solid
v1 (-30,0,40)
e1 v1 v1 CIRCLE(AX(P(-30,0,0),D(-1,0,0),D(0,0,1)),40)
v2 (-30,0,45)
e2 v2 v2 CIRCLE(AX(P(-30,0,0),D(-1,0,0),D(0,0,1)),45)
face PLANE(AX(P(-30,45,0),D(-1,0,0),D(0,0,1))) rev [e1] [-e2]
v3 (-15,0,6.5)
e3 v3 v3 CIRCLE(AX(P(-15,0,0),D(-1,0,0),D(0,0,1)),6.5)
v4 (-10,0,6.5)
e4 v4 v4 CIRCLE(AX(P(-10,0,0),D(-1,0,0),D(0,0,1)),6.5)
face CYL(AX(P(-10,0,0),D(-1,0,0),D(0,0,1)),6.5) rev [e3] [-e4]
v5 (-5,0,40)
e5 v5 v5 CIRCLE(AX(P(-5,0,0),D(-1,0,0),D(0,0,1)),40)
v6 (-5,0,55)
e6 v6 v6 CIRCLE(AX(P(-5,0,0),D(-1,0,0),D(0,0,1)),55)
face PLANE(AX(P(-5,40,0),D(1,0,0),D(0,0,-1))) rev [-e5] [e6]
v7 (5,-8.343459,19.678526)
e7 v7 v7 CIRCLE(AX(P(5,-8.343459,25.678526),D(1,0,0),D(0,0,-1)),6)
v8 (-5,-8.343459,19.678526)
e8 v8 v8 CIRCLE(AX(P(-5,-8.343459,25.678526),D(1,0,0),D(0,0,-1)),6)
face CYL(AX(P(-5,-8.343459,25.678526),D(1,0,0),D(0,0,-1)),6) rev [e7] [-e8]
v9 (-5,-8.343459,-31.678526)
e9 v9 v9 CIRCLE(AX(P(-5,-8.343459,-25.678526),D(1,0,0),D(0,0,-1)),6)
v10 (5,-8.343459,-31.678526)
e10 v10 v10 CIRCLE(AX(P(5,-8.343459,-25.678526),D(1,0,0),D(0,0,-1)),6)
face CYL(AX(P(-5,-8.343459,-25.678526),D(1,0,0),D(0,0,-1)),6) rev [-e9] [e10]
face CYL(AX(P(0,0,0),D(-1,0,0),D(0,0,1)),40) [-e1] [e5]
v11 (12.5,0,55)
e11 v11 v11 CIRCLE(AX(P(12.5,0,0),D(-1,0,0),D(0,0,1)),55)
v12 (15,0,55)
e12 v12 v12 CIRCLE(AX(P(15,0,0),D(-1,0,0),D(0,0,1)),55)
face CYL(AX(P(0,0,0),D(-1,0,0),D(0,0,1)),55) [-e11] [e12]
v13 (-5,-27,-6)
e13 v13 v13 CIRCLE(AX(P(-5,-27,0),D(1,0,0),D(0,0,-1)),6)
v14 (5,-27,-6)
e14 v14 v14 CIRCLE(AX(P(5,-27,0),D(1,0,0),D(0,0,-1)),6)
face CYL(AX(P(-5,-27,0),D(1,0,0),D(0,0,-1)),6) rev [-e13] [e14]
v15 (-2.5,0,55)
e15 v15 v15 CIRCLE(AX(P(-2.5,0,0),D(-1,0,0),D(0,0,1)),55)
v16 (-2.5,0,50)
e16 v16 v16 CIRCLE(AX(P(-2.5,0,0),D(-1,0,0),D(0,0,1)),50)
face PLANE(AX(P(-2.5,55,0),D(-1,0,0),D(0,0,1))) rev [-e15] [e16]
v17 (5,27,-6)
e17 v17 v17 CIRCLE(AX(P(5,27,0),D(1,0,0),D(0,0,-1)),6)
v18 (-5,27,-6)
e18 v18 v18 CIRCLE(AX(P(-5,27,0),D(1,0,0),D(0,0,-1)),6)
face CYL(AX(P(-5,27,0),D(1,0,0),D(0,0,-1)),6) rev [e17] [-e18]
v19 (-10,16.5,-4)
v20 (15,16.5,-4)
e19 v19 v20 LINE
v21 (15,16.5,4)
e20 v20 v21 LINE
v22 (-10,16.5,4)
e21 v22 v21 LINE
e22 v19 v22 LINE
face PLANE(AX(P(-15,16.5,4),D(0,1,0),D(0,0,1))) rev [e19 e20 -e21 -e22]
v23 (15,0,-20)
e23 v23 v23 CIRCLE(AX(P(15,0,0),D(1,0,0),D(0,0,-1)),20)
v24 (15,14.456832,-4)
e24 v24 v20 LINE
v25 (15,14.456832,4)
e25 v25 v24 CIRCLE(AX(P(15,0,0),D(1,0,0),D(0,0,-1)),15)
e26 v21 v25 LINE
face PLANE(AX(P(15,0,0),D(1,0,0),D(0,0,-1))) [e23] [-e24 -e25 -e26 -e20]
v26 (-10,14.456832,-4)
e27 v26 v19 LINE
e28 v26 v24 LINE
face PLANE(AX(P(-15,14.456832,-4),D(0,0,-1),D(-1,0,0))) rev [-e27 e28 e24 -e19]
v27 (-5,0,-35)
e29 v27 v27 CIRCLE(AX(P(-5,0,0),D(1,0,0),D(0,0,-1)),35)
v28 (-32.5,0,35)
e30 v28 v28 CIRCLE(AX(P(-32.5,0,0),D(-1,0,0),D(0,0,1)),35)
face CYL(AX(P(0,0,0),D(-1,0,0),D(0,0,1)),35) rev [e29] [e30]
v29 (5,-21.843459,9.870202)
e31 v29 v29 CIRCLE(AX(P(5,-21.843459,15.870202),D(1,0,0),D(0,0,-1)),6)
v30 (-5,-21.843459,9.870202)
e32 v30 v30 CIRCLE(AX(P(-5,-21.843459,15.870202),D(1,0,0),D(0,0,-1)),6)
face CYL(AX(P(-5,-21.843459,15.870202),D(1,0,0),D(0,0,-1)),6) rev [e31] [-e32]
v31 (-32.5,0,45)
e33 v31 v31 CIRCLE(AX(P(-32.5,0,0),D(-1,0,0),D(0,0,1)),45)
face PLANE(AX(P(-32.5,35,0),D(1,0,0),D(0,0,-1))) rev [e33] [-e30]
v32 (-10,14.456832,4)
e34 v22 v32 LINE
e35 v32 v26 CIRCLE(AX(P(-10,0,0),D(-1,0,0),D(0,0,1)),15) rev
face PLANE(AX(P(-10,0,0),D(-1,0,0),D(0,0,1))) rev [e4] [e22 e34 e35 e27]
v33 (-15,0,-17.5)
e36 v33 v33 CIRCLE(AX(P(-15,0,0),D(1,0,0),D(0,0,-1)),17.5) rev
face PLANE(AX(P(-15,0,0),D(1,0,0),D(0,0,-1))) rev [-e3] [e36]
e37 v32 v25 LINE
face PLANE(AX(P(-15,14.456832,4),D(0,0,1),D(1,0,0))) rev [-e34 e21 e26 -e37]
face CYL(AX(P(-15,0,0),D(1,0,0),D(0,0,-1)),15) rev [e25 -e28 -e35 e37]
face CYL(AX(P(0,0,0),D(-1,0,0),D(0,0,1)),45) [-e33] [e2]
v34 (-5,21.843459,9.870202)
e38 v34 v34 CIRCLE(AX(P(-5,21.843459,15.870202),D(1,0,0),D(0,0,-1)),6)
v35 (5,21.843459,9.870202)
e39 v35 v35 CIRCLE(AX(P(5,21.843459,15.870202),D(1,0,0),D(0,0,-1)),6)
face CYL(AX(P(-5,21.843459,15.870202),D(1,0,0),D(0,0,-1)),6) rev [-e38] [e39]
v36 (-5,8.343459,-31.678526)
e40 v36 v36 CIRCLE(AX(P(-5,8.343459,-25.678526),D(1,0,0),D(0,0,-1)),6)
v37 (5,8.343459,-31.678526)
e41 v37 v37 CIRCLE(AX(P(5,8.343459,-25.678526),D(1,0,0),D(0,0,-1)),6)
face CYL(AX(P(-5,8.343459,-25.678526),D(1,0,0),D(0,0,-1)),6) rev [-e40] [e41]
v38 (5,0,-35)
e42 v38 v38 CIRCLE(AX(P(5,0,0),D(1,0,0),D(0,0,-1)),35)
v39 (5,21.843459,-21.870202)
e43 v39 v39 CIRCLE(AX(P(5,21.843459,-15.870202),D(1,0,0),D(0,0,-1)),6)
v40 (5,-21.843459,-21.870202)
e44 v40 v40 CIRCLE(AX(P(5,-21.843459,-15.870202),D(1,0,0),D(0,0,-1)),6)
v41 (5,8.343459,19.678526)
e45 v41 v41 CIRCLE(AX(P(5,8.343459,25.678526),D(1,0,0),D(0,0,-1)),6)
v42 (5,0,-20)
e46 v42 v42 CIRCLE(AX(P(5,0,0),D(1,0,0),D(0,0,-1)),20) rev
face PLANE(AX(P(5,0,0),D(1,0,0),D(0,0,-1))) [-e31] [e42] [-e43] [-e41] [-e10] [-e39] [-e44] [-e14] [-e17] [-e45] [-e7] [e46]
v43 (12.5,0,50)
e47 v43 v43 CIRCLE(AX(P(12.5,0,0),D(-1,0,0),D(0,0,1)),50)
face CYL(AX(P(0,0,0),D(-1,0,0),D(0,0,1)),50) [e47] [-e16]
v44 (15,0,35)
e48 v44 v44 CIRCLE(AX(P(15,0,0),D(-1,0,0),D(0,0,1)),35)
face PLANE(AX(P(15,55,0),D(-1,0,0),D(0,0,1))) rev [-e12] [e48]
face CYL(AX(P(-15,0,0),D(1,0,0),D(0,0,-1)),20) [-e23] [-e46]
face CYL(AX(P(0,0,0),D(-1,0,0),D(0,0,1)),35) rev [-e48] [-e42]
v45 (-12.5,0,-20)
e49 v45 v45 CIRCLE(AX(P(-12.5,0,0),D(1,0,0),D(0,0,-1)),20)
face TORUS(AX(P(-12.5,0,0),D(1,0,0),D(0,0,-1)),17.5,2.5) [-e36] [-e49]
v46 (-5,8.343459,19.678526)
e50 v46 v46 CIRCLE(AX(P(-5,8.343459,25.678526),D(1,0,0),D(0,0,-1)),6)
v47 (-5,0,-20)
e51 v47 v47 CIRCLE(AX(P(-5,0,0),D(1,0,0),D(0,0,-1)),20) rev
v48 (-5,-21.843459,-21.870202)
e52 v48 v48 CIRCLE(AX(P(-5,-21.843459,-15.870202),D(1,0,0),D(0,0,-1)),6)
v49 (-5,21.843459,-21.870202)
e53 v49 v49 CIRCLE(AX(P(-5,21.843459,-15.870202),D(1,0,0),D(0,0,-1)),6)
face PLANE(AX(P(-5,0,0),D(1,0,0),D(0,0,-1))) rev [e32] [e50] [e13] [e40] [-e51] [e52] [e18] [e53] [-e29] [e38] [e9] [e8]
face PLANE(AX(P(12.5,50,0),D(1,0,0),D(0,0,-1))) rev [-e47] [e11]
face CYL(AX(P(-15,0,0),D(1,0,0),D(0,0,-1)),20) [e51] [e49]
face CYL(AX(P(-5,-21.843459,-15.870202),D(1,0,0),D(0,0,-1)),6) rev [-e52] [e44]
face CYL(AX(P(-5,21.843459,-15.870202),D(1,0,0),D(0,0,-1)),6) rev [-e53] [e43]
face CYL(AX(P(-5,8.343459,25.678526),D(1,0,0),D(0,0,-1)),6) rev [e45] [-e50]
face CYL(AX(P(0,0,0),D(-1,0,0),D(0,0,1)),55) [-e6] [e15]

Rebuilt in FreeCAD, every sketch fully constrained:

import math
import FreeCAD as App
import Part
import Sketcher
from FreeCAD import Vector


def edges_at(feature, points):
    """Names of the edges that pass closest to the given points."""
    edges = feature.Shape.Edges
    near = lambda p: min(range(len(edges)), key=lambda i: edges[i].distToShape(Part.Vertex(*p))[0])
    return sorted({f"Edge{near(p) + 1}" for p in points})

doc = App.newDocument("Part")
params = doc.addObject("Spreadsheet::Sheet", "Params")
for row, (alias, value) in enumerate([
    ("sketch1_diameter", "40 mm"),
    ("sketch1_radius", "15 mm"),
    ("sketch1_height", "8 mm"),
    ("pad1_length", "15 mm"),
    ("pad1_length2", "15 mm"),
    ("sketch2_diameter", "40 mm"),
    ("sketch2_diameter2", "13 mm"),
    ("pad2_length", "5 mm"),
    ("sketch3_diameter", "80 mm"),
    ("sketch3_diameter2", "12 mm"),
    ("sketch3_diameter3", "35 mm"),
    ("pad3_length", "5 mm"),
    ("pad3_length2", "5 mm"),
    ("sketch4_width", "15 mm"),
    ("sketch4_width2", "25 mm"),
    ("sketch4_height", "10 mm"),
    ("sketch4_height2", "20 mm"),
    ("sketch4_width3", "47.5 mm"),
    ("revolution_angle", "360 deg"),
    ("fillet_radius", "2.5 mm"),
], start=1):
    params.set(f"A{row}", alias)
    params.set(f"B{row}", "=" + value)
    params.setAlias(f"B{row}", alias)

body = doc.addObject("PartDesign::Body", "Body")

# Sketch on YZ plane
sketch1 = body.newObject("Sketcher::SketchObject", "Sketch")
sketch1.AttachmentSupport = (doc.getObject("YZ_Plane"), [""])
sketch1.MapMode = "FlatFace"
sketch1.addGeometry(Part.Circle(Vector(0, 0, 0), Vector(0, 0, 1), 20), False)
sketch1.addGeometry(Part.ArcOfCircle(Part.Circle(Vector(0, 0, 0), Vector(0, 0, 1), 15), math.radians(15), math.radians(345)), False)
sketch1.addGeometry(Part.LineSegment(Vector(14.5, 4, 0), Vector(16.5, 4, 0)), False)
sketch1.addGeometry(Part.LineSegment(Vector(16.5, 4, 0), Vector(16.5, -4, 0)), False)
sketch1.addGeometry(Part.LineSegment(Vector(16.5, -4, 0), Vector(14.5, -4, 0)), False)
sketch1.addConstraint(Sketcher.Constraint("Coincident", 1, 1, 2, 1))
sketch1.addConstraint(Sketcher.Constraint("Coincident", 2, 2, 3, 1))
sketch1.addConstraint(Sketcher.Constraint("Coincident", 3, 2, 4, 1))
sketch1.addConstraint(Sketcher.Constraint("Coincident", 4, 2, 1, 2))
sketch1.addConstraint(Sketcher.Constraint("Horizontal", 2))
sketch1.addConstraint(Sketcher.Constraint("Vertical", 3))
sketch1.addConstraint(Sketcher.Constraint("Horizontal", 4))
sketch1.addConstraint(Sketcher.Constraint("Coincident", 0, 3, -1, 1))
sketch1.addConstraint(Sketcher.Constraint("Coincident", 1, 3, -1, 1))
sketch1.addConstraint(Sketcher.Constraint("Vertical", 1, 1, 4, 2))
sketch1.addConstraint(Sketcher.Constraint("Diameter", 0, 40.0))
sketch1.addConstraint(Sketcher.Constraint("Radius", 1, 15.0))
sketch1.addConstraint(Sketcher.Constraint("DistanceY", 3, 2, 3, 1, 8.0))
sketch1.addConstraint(Sketcher.Constraint("DistanceX", -1, 1, 2, 2, 16.5))
sketch1.setExpression("Constraints[10]", "Params.sketch1_diameter")
sketch1.setExpression("Constraints[11]", "Params.sketch1_radius")
sketch1.setExpression("Constraints[12]", "Params.sketch1_height")
pad1 = body.newObject("PartDesign::Pad", "Pad")
pad1.Profile = sketch1
pad1.Type = "TwoLengths"
pad1.setExpression("Length", "Params.pad1_length")
pad1.setExpression("Length2", "Params.pad1_length2")

# Sketch on YZ plane
sketch2 = body.newObject("Sketcher::SketchObject", "Sketch001")
sketch2.AttachmentSupport = (doc.getObject("YZ_Plane"), [""])
sketch2.MapMode = "FlatFace"
sketch2.AttachmentOffset = App.Placement(Vector(0, 0, -15), App.Rotation())
sketch2.addGeometry(Part.Circle(Vector(0, 0, 0), Vector(0, 0, 1), 20), False)
sketch2.addGeometry(Part.Circle(Vector(0, 0, 0), Vector(0, 0, 1), 6), False)
sketch2.addConstraint(Sketcher.Constraint("Coincident", 0, 3, -1, 1))
sketch2.addConstraint(Sketcher.Constraint("Coincident", 1, 3, -1, 1))
sketch2.addConstraint(Sketcher.Constraint("Diameter", 0, 40.0))
sketch2.addConstraint(Sketcher.Constraint("Diameter", 1, 13.0))
sketch2.setExpression("Constraints[2]", "Params.sketch2_diameter")
sketch2.setExpression("Constraints[3]", "Params.sketch2_diameter2")
pad2 = body.newObject("PartDesign::Pad", "Pad001")
pad2.Profile = sketch2
pad2.setExpression("Length", "Params.pad2_length")

# Sketch on YZ plane
sketch3 = body.newObject("Sketcher::SketchObject", "Sketch002")
sketch3.AttachmentSupport = (doc.getObject("YZ_Plane"), [""])
sketch3.MapMode = "FlatFace"
sketch3.addGeometry(Part.Circle(Vector(0, 0, 0), Vector(0, 0, 1), 40), False)
sketch3.addGeometry(Part.Circle(Vector(-22, 16, 0), Vector(0, 0, 1), 6), False)
sketch3.addGeometry(Part.Circle(Vector(-8, 26, 0), Vector(0, 0, 1), 6), False)
sketch3.addGeometry(Part.Circle(Vector(-27, 0, 0), Vector(0, 0, 1), 6), False)
sketch3.addGeometry(Part.Circle(Vector(-22, -16, 0), Vector(0, 0, 1), 6), False)
sketch3.addGeometry(Part.Circle(Vector(-8, -26, 0), Vector(0, 0, 1), 6), False)
sketch3.addGeometry(Part.Circle(Vector(8, 26, 0), Vector(0, 0, 1), 6), False)
sketch3.addGeometry(Part.Circle(Vector(22, 16, 0), Vector(0, 0, 1), 6), False)
sketch3.addGeometry(Part.Circle(Vector(0, 0, 0), Vector(0, 0, 1), 18), False)
sketch3.addGeometry(Part.Circle(Vector(8, -26, 0), Vector(0, 0, 1), 6), False)
sketch3.addGeometry(Part.Circle(Vector(27, 0, 0), Vector(0, 0, 1), 6), False)
sketch3.addGeometry(Part.Circle(Vector(22, -16, 0), Vector(0, 0, 1), 6), False)
sketch3.addConstraint(Sketcher.Constraint("Coincident", 0, 3, -1, 1))
sketch3.addConstraint(Sketcher.Constraint("Coincident", 8, 3, -1, 1))
sketch3.addConstraint(Sketcher.Constraint("Equal", 1, 2))
sketch3.addConstraint(Sketcher.Constraint("Equal", 2, 3))
sketch3.addConstraint(Sketcher.Constraint("Equal", 3, 4))
sketch3.addConstraint(Sketcher.Constraint("Equal", 4, 5))
sketch3.addConstraint(Sketcher.Constraint("Equal", 5, 6))
sketch3.addConstraint(Sketcher.Constraint("Equal", 6, 7))
sketch3.addConstraint(Sketcher.Constraint("Equal", 7, 9))
sketch3.addConstraint(Sketcher.Constraint("Equal", 9, 10))
sketch3.addConstraint(Sketcher.Constraint("Equal", 10, 11))
sketch3.addConstraint(Sketcher.Constraint("Symmetric", 5, 3, 6, 3, -1, 1))
sketch3.addConstraint(Sketcher.Constraint("Symmetric", 4, 3, 7, 3, -1, 1))
sketch3.addConstraint(Sketcher.Constraint("Symmetric", 2, 3, 9, 3, -1, 1))
sketch3.addConstraint(Sketcher.Constraint("Symmetric", 3, 3, 10, 3, -1, 1))
sketch3.addConstraint(Sketcher.Constraint("Symmetric", 1, 3, 11, 3, -1, 1))
sketch3.addConstraint(Sketcher.Constraint("Symmetric", 2, 3, 6, 3, -2))
sketch3.addConstraint(Sketcher.Constraint("Symmetric", 1, 3, 7, 3, -2))
sketch3.addConstraint(Sketcher.Constraint("PointOnObject", 3, 3, -1))
sketch3.addConstraint(Sketcher.Constraint("Diameter", 0, 80.0))
sketch3.addConstraint(Sketcher.Constraint("Diameter", 1, 12.0))
sketch3.addConstraint(Sketcher.Constraint("Diameter", 8, 35.0))
sketch3.addConstraint(Sketcher.Constraint("DistanceX", 3, 3, -1, 1, 27.0))
sketch3.addConstraint(Sketcher.Constraint("DistanceX", 1, 3, 2, 3, 13.5))
sketch3.addConstraint(Sketcher.Constraint("DistanceY", -1, 1, 1, 3, 15.870202))
sketch3.addConstraint(Sketcher.Constraint("DistanceX", 1, 3, -1, 1, 21.843459))
sketch3.addConstraint(Sketcher.Constraint("DistanceY", 5, 3, 2, 3, 51.357052))
sketch3.setExpression("Constraints[19]", "Params.sketch3_diameter")
sketch3.setExpression("Constraints[20]", "Params.sketch3_diameter2")
sketch3.setExpression("Constraints[21]", "Params.sketch3_diameter3")
pad3 = body.newObject("PartDesign::Pad", "Pad002")
pad3.Profile = sketch3
pad3.Type = "TwoLengths"
pad3.setExpression("Length", "Params.pad3_length")
pad3.setExpression("Length2", "Params.pad3_length2")

# Sketch on XY plane
sketch4 = body.newObject("Sketcher::SketchObject", "Sketch003")
sketch4.AttachmentSupport = (doc.getObject("XY_Plane"), [""])
sketch4.MapMode = "FlatFace"
sketch4.addGeometry(Part.LineSegment(Vector(-32.5, 45, 0), Vector(-32.5, 35, 0)), False)
sketch4.addGeometry(Part.LineSegment(Vector(-32.5, 35, 0), Vector(15, 35, 0)), False)
sketch4.addGeometry(Part.LineSegment(Vector(15, 35, 0), Vector(15, 55, 0)), False)
sketch4.addGeometry(Part.LineSegment(Vector(15, 55, 0), Vector(12.5, 55, 0)), False)
sketch4.addGeometry(Part.LineSegment(Vector(12.5, 55, 0), Vector(12.5, 50, 0)), False)
sketch4.addGeometry(Part.LineSegment(Vector(12.5, 50, 0), Vector(-2.5, 50, 0)), False)
sketch4.addGeometry(Part.LineSegment(Vector(-2.5, 50, 0), Vector(-2.5, 55, 0)), False)
sketch4.addGeometry(Part.LineSegment(Vector(-2.5, 55, 0), Vector(-5, 55, 0)), False)
sketch4.addGeometry(Part.LineSegment(Vector(-5, 55, 0), Vector(-5, 40, 0)), False)
sketch4.addGeometry(Part.LineSegment(Vector(-5, 40, 0), Vector(-30, 40, 0)), False)
sketch4.addGeometry(Part.LineSegment(Vector(-30, 40, 0), Vector(-30, 45, 0)), False)
sketch4.addGeometry(Part.LineSegment(Vector(-30, 45, 0), Vector(-32.5, 45, 0)), False)
sketch4.addConstraint(Sketcher.Constraint("Coincident", 0, 2, 1, 1))
sketch4.addConstraint(Sketcher.Constraint("Coincident", 1, 2, 2, 1))
sketch4.addConstraint(Sketcher.Constraint("Coincident", 2, 2, 3, 1))
sketch4.addConstraint(Sketcher.Constraint("Coincident", 3, 2, 4, 1))
sketch4.addConstraint(Sketcher.Constraint("Coincident", 4, 2, 5, 1))
sketch4.addConstraint(Sketcher.Constraint("Coincident", 5, 2, 6, 1))
sketch4.addConstraint(Sketcher.Constraint("Coincident", 6, 2, 7, 1))
sketch4.addConstraint(Sketcher.Constraint("Coincident", 7, 2, 8, 1))
sketch4.addConstraint(Sketcher.Constraint("Coincident", 8, 2, 9, 1))
sketch4.addConstraint(Sketcher.Constraint("Coincident", 9, 2, 10, 1))
sketch4.addConstraint(Sketcher.Constraint("Coincident", 10, 2, 11, 1))
sketch4.addConstraint(Sketcher.Constraint("Coincident", 11, 2, 0, 1))
sketch4.addConstraint(Sketcher.Constraint("Vertical", 0))
sketch4.addConstraint(Sketcher.Constraint("Horizontal", 1))
sketch4.addConstraint(Sketcher.Constraint("Vertical", 2))
sketch4.addConstraint(Sketcher.Constraint("Horizontal", 3))
sketch4.addConstraint(Sketcher.Constraint("Vertical", 4))
sketch4.addConstraint(Sketcher.Constraint("Horizontal", 5))
sketch4.addConstraint(Sketcher.Constraint("Vertical", 6))
sketch4.addConstraint(Sketcher.Constraint("Horizontal", 7))
sketch4.addConstraint(Sketcher.Constraint("Vertical", 8))
sketch4.addConstraint(Sketcher.Constraint("Horizontal", 9))
sketch4.addConstraint(Sketcher.Constraint("Vertical", 10))
sketch4.addConstraint(Sketcher.Constraint("Horizontal", 11))
sketch4.addConstraint(Sketcher.Constraint("Horizontal", 3, 2, 6, 2))
sketch4.addConstraint(Sketcher.Constraint("Equal", 3, 7))
sketch4.addConstraint(Sketcher.Constraint("Equal", 7, 11))
sketch4.addConstraint(Sketcher.Constraint("Equal", 5, 8))
sketch4.addConstraint(Sketcher.Constraint("Equal", 6, 10))
sketch4.addConstraint(Sketcher.Constraint("DistanceX", 5, 2, 5, 1, 15.0))
sketch4.addConstraint(Sketcher.Constraint("DistanceX", 9, 2, 9, 1, 25.0))
sketch4.addConstraint(Sketcher.Constraint("DistanceY", 0, 2, 0, 1, 10.0))
sketch4.addConstraint(Sketcher.Constraint("DistanceY", 2, 1, 2, 2, 20.0))
sketch4.addConstraint(Sketcher.Constraint("DistanceX", 1, 1, 1, 2, 47.5))
sketch4.addConstraint(Sketcher.Constraint("DistanceY", -1, 1, 0, 2, 35.0))
sketch4.addConstraint(Sketcher.Constraint("DistanceX", -1, 1, 1, 2, 15.0))
sketch4.setExpression("Constraints[29]", "Params.sketch4_width")
sketch4.setExpression("Constraints[30]", "Params.sketch4_width2")
sketch4.setExpression("Constraints[31]", "Params.sketch4_height")
sketch4.setExpression("Constraints[32]", "Params.sketch4_height2")
sketch4.setExpression("Constraints[33]", "Params.sketch4_width3")
revolution = body.newObject("PartDesign::Revolution", "Revolution")
revolution.Profile = sketch4
revolution.ReferenceAxis = (sketch4, ["H_Axis"])
revolution.setExpression("Angle", "Params.revolution_angle")
doc.recompute()

fillet = body.newObject("PartDesign::Fillet", "Fillet")
fillet.Base = (revolution, edges_at(revolution, [(-15, 0, 20)]))
fillet.setExpression("Radius", "Params.fillet_radius")

doc.recompute()
